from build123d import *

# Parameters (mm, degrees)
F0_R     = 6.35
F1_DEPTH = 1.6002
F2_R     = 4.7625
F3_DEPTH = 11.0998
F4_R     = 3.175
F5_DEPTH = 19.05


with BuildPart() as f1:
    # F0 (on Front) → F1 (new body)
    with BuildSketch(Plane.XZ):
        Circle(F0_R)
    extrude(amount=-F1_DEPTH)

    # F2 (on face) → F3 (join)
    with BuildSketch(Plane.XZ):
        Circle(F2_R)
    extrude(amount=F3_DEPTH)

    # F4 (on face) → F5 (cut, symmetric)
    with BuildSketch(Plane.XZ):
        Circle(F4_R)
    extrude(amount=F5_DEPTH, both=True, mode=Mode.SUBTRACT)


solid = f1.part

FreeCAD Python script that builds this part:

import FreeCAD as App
import Part
import Sketcher

V = App.Vector
Q = App.Units.Quantity

doc = App.newDocument("Part")
body = doc.addObject("PartDesign::Body", "Body")

# Sketch on XZ plane
sketch1 = doc.addObject("Sketcher::SketchObject", "Sketch")
body.addObject(sketch1)
sketch1.AttachmentSupport = (doc.XZ_Plane, [""])
sketch1.MapMode = "FlatFace"
sketch1.addGeometry(Part.Circle(V(0, 0, 0), V(0, 0, 1), 6), False)
sketch1.addConstraint([
    Sketcher.Constraint("Coincident", 0, 3, -1, 1),
    Sketcher.Constraint("Diameter", 0, Q("0.5 in")),
])
pad1 = doc.addObject("PartDesign::Pad", "Pad")
body.addObject(pad1)
pad1.Profile = sketch1
pad1.Length = Q("0.063 in")
pad1.Reversed = True

# Sketch on XZ plane
sketch2 = doc.addObject("Sketcher::SketchObject", "Sketch001")
body.addObject(sketch2)
sketch2.AttachmentSupport = (doc.XZ_Plane, [""])
sketch2.MapMode = "FlatFace"
sketch2.addGeometry(Part.Circle(V(0, 0, 0), V(0, 0, 1), 4.8), False)
sketch2.addConstraint([
    Sketcher.Constraint("Coincident", 0, 3, -1, 1),
    Sketcher.Constraint("Diameter", 0, Q("0.375 in")),
])
pad2 = doc.addObject("PartDesign::Pad", "Pad001")
body.addObject(pad2)
pad2.Profile = sketch2
pad2.Length = Q("0.437 in")

# Sketch on XZ plane
sketch3 = doc.addObject("Sketcher::SketchObject", "Sketch002")
body.addObject(sketch3)
sketch3.AttachmentSupport = (doc.XZ_Plane, [""])
sketch3.MapMode = "FlatFace"
sketch3.addGeometry(Part.Circle(V(0, 0, 0), V(0, 0, 1), 3.2), False)
sketch3.addConstraint([
    Sketcher.Constraint("Coincident", 0, 3, -1, 1),
    Sketcher.Constraint("Diameter", 0, Q("0.25 in")),
])
pocket1 = doc.addObject("PartDesign::Pocket", "Pocket")
body.addObject(pocket1)
pocket1.Profile = sketch3
pocket1.Length = Q("1.5 in")
pocket1.Midplane = True

doc.recompute()
